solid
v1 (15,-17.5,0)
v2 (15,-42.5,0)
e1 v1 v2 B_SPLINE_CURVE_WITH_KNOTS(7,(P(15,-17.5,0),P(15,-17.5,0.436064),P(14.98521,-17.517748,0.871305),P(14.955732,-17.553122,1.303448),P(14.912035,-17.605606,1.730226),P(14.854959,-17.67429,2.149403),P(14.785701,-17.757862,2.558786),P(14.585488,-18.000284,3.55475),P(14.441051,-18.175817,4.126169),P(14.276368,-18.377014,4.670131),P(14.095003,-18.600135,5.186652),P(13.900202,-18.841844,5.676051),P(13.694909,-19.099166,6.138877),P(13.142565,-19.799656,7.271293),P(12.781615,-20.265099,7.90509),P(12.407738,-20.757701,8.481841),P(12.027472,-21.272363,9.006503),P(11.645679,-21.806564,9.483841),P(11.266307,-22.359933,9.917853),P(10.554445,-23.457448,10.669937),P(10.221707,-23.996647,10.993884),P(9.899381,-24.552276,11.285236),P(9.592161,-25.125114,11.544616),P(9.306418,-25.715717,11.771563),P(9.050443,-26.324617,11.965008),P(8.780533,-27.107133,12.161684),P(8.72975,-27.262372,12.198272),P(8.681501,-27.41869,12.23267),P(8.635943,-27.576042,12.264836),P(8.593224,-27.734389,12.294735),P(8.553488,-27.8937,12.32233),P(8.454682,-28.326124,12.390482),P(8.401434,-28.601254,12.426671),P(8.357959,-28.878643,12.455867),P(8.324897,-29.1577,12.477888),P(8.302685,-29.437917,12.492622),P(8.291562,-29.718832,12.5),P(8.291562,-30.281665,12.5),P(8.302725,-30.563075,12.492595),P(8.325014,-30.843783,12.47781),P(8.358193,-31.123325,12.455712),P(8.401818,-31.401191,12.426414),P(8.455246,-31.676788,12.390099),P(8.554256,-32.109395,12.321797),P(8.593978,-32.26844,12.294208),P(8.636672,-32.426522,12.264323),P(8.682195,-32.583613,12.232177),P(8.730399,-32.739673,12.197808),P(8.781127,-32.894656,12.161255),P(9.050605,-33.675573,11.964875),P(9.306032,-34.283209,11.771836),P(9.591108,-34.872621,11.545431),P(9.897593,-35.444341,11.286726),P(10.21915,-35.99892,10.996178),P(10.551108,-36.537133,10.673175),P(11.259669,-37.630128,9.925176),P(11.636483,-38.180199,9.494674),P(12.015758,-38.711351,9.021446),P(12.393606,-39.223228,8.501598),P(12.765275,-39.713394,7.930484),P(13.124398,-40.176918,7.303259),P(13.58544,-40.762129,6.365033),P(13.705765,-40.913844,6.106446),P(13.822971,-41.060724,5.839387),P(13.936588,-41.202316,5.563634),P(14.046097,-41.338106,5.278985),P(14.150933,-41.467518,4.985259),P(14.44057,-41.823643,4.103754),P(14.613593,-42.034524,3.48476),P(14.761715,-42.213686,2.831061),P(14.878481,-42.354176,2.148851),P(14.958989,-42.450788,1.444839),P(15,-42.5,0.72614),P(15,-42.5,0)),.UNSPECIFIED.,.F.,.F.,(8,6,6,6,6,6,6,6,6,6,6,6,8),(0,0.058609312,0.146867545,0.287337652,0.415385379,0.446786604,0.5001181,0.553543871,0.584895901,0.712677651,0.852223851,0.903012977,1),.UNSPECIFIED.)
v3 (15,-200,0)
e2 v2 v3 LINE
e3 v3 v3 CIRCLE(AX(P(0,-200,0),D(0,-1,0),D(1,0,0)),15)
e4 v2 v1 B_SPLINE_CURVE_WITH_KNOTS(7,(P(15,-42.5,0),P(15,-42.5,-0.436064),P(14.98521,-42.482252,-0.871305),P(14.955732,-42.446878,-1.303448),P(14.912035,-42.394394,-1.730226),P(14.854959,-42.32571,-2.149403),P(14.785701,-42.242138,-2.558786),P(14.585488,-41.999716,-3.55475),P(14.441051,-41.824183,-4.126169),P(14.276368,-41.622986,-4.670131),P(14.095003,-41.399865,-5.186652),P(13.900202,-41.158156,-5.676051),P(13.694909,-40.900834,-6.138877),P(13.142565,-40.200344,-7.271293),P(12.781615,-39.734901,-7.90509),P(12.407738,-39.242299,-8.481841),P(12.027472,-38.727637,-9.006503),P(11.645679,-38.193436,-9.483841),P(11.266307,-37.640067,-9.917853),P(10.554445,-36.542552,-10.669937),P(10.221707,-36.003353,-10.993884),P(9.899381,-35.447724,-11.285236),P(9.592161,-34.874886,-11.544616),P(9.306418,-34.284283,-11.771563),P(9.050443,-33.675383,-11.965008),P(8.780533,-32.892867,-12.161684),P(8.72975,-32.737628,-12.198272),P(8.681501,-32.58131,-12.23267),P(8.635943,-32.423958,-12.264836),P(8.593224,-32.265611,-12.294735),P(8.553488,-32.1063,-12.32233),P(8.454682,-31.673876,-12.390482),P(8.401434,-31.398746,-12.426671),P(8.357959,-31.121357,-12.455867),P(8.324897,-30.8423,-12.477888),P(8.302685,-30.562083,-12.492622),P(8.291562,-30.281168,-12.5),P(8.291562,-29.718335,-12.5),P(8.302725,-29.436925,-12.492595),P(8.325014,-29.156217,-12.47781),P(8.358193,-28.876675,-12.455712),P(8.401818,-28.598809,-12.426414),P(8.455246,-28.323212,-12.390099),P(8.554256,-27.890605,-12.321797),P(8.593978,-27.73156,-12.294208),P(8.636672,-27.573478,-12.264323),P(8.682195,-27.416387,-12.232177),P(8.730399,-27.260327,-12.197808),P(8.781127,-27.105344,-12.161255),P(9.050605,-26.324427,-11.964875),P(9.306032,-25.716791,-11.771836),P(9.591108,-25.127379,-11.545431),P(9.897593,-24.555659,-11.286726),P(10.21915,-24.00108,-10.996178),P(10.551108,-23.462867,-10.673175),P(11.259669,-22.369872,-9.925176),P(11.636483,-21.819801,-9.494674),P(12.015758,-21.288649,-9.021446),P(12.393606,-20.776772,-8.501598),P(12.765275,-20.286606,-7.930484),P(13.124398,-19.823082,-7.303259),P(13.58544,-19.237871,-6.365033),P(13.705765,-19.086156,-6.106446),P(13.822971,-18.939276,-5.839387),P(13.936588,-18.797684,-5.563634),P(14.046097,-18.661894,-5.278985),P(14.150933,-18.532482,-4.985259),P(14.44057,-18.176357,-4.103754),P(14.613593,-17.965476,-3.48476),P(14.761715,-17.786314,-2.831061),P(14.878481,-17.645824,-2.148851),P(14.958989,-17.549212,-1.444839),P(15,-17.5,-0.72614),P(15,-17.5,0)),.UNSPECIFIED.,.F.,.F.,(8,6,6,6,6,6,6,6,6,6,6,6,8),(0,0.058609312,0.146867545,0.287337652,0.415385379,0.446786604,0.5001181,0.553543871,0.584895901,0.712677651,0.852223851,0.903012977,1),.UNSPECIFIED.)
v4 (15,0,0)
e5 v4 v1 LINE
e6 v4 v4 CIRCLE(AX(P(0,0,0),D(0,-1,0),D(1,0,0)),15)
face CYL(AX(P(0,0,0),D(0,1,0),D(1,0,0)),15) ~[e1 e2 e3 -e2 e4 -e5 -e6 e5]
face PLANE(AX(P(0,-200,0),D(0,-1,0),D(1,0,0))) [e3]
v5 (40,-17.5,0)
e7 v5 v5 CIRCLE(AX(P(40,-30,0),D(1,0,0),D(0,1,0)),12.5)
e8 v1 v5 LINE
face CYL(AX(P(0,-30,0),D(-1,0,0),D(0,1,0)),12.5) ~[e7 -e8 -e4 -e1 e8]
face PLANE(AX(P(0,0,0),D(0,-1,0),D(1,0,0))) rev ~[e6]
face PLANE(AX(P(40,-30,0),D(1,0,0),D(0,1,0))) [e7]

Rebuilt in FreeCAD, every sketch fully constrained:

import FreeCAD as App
import Part
import Sketcher

V = App.Vector
Q = App.Units.Quantity

doc = App.newDocument("Part")
params = doc.addObject("Spreadsheet::Sheet", "Params")
for row, (alias, value) in enumerate([
    ("sketch1_diameter", "30 mm"),
    ("pad1_length", "200 mm"),
    ("sketch2_diameter", "25 mm"),
    ("pad2_length", "40 mm"),
], start=1):
    params.set(f"A{row}", alias)
    params.set(f"B{row}", "=" + value)
    params.setAlias(f"B{row}", alias)

body = doc.addObject("PartDesign::Body", "Body")

# Sketch on XZ plane
sketch1 = doc.addObject("Sketcher::SketchObject", "Sketch")
body.addObject(sketch1)
sketch1.AttachmentSupport = (doc.XZ_Plane, [""])
sketch1.MapMode = "FlatFace"
sketch1.addGeometry(Part.Circle(V(0, 0, 0), V(0, 0, 1), 15), False)
sketch1.addConstraint(Sketcher.Constraint("Coincident", 0, 3, -1, 1))
sketch1.addConstraint(Sketcher.Constraint("Diameter", 0, Q("30 mm")))
sketch1.setExpression("Constraints[1]", "Params.sketch1_diameter")
pad1 = doc.addObject("PartDesign::Pad", "Pad")
body.addObject(pad1)
pad1.Profile = sketch1
pad1.setExpression("Length", "Params.pad1_length")

# Sketch on YZ plane
sketch2 = doc.addObject("Sketcher::SketchObject", "Sketch001")
body.addObject(sketch2)
sketch2.AttachmentSupport = (doc.YZ_Plane, [""])
sketch2.MapMode = "FlatFace"
sketch2.addGeometry(Part.Circle(V(-30, 0, 0), V(0, 0, 1), 12.5), False)
sketch2.addConstraint(Sketcher.Constraint("PointOnObject", 0, 3, -1))
sketch2.addConstraint(Sketcher.Constraint("Diameter", 0, Q("25 mm")))
sketch2.addConstraint(Sketcher.Constraint("DistanceX", 0, 3, -1, 1, Q("30 mm")))
sketch2.setExpression("Constraints[1]", "Params.sketch2_diameter")
pad2 = doc.addObject("PartDesign::Pad", "Pad001")
body.addObject(pad2)
pad2.Profile = sketch2
pad2.setExpression("Length", "Params.pad2_length")

doc.recompute()
